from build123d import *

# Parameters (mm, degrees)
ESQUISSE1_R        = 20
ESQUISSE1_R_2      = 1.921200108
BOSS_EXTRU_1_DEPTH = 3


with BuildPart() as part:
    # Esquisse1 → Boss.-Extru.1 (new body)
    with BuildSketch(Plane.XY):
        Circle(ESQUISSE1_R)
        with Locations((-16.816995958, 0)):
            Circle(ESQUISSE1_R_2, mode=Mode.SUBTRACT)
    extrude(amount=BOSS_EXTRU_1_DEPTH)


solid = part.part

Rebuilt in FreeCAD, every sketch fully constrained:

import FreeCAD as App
import Part
import Sketcher

V = App.Vector
Q = App.Units.Quantity

doc = App.newDocument("Part")
params = doc.addObject("Spreadsheet::Sheet", "Params")
for row, (alias, value) in enumerate([
    ("sketch1_diameter", "40 mm"),
    ("pad1_length", "3 mm"),
], start=1):
    params.set(f"A{row}", alias)
    params.set(f"B{row}", "=" + value)
    params.setAlias(f"B{row}", alias)

body = doc.addObject("PartDesign::Body", "Body")

sketch1 = doc.addObject("Sketcher::SketchObject", "Sketch")
body.addObject(sketch1)
sketch1.AttachmentSupport = (doc.XY_Plane, [""])
sketch1.MapMode = "FlatFace"
sketch1.addGeometry([
    Part.Circle(V(0, 0, 0), V(0, 0, 1), 20),
    Part.Circle(V(-16.8, 0, 0), V(0, 0, 1), 1.9),
], False)
sketch1.addConstraint([
    Sketcher.Constraint("Coincident", 0, 3, -1, 1),
    Sketcher.Constraint("PointOnObject", 1, 3, -1),
    Sketcher.Constraint("Diameter", 0, Q("40 mm")),
    Sketcher.Constraint("Diameter", 1, Q("3.8424 mm")),
    Sketcher.Constraint("DistanceX", 1, 3, -1, 1, Q("16.816996 mm")),
])
sketch1.setExpression("Constraints[2]", "Params.sketch1_diameter")
pad1 = doc.addObject("PartDesign::Pad", "Pad")
body.addObject(pad1)
pad1.Profile = sketch1
pad1.setExpression("Length", "Params.pad1_length")

doc.recompute()
